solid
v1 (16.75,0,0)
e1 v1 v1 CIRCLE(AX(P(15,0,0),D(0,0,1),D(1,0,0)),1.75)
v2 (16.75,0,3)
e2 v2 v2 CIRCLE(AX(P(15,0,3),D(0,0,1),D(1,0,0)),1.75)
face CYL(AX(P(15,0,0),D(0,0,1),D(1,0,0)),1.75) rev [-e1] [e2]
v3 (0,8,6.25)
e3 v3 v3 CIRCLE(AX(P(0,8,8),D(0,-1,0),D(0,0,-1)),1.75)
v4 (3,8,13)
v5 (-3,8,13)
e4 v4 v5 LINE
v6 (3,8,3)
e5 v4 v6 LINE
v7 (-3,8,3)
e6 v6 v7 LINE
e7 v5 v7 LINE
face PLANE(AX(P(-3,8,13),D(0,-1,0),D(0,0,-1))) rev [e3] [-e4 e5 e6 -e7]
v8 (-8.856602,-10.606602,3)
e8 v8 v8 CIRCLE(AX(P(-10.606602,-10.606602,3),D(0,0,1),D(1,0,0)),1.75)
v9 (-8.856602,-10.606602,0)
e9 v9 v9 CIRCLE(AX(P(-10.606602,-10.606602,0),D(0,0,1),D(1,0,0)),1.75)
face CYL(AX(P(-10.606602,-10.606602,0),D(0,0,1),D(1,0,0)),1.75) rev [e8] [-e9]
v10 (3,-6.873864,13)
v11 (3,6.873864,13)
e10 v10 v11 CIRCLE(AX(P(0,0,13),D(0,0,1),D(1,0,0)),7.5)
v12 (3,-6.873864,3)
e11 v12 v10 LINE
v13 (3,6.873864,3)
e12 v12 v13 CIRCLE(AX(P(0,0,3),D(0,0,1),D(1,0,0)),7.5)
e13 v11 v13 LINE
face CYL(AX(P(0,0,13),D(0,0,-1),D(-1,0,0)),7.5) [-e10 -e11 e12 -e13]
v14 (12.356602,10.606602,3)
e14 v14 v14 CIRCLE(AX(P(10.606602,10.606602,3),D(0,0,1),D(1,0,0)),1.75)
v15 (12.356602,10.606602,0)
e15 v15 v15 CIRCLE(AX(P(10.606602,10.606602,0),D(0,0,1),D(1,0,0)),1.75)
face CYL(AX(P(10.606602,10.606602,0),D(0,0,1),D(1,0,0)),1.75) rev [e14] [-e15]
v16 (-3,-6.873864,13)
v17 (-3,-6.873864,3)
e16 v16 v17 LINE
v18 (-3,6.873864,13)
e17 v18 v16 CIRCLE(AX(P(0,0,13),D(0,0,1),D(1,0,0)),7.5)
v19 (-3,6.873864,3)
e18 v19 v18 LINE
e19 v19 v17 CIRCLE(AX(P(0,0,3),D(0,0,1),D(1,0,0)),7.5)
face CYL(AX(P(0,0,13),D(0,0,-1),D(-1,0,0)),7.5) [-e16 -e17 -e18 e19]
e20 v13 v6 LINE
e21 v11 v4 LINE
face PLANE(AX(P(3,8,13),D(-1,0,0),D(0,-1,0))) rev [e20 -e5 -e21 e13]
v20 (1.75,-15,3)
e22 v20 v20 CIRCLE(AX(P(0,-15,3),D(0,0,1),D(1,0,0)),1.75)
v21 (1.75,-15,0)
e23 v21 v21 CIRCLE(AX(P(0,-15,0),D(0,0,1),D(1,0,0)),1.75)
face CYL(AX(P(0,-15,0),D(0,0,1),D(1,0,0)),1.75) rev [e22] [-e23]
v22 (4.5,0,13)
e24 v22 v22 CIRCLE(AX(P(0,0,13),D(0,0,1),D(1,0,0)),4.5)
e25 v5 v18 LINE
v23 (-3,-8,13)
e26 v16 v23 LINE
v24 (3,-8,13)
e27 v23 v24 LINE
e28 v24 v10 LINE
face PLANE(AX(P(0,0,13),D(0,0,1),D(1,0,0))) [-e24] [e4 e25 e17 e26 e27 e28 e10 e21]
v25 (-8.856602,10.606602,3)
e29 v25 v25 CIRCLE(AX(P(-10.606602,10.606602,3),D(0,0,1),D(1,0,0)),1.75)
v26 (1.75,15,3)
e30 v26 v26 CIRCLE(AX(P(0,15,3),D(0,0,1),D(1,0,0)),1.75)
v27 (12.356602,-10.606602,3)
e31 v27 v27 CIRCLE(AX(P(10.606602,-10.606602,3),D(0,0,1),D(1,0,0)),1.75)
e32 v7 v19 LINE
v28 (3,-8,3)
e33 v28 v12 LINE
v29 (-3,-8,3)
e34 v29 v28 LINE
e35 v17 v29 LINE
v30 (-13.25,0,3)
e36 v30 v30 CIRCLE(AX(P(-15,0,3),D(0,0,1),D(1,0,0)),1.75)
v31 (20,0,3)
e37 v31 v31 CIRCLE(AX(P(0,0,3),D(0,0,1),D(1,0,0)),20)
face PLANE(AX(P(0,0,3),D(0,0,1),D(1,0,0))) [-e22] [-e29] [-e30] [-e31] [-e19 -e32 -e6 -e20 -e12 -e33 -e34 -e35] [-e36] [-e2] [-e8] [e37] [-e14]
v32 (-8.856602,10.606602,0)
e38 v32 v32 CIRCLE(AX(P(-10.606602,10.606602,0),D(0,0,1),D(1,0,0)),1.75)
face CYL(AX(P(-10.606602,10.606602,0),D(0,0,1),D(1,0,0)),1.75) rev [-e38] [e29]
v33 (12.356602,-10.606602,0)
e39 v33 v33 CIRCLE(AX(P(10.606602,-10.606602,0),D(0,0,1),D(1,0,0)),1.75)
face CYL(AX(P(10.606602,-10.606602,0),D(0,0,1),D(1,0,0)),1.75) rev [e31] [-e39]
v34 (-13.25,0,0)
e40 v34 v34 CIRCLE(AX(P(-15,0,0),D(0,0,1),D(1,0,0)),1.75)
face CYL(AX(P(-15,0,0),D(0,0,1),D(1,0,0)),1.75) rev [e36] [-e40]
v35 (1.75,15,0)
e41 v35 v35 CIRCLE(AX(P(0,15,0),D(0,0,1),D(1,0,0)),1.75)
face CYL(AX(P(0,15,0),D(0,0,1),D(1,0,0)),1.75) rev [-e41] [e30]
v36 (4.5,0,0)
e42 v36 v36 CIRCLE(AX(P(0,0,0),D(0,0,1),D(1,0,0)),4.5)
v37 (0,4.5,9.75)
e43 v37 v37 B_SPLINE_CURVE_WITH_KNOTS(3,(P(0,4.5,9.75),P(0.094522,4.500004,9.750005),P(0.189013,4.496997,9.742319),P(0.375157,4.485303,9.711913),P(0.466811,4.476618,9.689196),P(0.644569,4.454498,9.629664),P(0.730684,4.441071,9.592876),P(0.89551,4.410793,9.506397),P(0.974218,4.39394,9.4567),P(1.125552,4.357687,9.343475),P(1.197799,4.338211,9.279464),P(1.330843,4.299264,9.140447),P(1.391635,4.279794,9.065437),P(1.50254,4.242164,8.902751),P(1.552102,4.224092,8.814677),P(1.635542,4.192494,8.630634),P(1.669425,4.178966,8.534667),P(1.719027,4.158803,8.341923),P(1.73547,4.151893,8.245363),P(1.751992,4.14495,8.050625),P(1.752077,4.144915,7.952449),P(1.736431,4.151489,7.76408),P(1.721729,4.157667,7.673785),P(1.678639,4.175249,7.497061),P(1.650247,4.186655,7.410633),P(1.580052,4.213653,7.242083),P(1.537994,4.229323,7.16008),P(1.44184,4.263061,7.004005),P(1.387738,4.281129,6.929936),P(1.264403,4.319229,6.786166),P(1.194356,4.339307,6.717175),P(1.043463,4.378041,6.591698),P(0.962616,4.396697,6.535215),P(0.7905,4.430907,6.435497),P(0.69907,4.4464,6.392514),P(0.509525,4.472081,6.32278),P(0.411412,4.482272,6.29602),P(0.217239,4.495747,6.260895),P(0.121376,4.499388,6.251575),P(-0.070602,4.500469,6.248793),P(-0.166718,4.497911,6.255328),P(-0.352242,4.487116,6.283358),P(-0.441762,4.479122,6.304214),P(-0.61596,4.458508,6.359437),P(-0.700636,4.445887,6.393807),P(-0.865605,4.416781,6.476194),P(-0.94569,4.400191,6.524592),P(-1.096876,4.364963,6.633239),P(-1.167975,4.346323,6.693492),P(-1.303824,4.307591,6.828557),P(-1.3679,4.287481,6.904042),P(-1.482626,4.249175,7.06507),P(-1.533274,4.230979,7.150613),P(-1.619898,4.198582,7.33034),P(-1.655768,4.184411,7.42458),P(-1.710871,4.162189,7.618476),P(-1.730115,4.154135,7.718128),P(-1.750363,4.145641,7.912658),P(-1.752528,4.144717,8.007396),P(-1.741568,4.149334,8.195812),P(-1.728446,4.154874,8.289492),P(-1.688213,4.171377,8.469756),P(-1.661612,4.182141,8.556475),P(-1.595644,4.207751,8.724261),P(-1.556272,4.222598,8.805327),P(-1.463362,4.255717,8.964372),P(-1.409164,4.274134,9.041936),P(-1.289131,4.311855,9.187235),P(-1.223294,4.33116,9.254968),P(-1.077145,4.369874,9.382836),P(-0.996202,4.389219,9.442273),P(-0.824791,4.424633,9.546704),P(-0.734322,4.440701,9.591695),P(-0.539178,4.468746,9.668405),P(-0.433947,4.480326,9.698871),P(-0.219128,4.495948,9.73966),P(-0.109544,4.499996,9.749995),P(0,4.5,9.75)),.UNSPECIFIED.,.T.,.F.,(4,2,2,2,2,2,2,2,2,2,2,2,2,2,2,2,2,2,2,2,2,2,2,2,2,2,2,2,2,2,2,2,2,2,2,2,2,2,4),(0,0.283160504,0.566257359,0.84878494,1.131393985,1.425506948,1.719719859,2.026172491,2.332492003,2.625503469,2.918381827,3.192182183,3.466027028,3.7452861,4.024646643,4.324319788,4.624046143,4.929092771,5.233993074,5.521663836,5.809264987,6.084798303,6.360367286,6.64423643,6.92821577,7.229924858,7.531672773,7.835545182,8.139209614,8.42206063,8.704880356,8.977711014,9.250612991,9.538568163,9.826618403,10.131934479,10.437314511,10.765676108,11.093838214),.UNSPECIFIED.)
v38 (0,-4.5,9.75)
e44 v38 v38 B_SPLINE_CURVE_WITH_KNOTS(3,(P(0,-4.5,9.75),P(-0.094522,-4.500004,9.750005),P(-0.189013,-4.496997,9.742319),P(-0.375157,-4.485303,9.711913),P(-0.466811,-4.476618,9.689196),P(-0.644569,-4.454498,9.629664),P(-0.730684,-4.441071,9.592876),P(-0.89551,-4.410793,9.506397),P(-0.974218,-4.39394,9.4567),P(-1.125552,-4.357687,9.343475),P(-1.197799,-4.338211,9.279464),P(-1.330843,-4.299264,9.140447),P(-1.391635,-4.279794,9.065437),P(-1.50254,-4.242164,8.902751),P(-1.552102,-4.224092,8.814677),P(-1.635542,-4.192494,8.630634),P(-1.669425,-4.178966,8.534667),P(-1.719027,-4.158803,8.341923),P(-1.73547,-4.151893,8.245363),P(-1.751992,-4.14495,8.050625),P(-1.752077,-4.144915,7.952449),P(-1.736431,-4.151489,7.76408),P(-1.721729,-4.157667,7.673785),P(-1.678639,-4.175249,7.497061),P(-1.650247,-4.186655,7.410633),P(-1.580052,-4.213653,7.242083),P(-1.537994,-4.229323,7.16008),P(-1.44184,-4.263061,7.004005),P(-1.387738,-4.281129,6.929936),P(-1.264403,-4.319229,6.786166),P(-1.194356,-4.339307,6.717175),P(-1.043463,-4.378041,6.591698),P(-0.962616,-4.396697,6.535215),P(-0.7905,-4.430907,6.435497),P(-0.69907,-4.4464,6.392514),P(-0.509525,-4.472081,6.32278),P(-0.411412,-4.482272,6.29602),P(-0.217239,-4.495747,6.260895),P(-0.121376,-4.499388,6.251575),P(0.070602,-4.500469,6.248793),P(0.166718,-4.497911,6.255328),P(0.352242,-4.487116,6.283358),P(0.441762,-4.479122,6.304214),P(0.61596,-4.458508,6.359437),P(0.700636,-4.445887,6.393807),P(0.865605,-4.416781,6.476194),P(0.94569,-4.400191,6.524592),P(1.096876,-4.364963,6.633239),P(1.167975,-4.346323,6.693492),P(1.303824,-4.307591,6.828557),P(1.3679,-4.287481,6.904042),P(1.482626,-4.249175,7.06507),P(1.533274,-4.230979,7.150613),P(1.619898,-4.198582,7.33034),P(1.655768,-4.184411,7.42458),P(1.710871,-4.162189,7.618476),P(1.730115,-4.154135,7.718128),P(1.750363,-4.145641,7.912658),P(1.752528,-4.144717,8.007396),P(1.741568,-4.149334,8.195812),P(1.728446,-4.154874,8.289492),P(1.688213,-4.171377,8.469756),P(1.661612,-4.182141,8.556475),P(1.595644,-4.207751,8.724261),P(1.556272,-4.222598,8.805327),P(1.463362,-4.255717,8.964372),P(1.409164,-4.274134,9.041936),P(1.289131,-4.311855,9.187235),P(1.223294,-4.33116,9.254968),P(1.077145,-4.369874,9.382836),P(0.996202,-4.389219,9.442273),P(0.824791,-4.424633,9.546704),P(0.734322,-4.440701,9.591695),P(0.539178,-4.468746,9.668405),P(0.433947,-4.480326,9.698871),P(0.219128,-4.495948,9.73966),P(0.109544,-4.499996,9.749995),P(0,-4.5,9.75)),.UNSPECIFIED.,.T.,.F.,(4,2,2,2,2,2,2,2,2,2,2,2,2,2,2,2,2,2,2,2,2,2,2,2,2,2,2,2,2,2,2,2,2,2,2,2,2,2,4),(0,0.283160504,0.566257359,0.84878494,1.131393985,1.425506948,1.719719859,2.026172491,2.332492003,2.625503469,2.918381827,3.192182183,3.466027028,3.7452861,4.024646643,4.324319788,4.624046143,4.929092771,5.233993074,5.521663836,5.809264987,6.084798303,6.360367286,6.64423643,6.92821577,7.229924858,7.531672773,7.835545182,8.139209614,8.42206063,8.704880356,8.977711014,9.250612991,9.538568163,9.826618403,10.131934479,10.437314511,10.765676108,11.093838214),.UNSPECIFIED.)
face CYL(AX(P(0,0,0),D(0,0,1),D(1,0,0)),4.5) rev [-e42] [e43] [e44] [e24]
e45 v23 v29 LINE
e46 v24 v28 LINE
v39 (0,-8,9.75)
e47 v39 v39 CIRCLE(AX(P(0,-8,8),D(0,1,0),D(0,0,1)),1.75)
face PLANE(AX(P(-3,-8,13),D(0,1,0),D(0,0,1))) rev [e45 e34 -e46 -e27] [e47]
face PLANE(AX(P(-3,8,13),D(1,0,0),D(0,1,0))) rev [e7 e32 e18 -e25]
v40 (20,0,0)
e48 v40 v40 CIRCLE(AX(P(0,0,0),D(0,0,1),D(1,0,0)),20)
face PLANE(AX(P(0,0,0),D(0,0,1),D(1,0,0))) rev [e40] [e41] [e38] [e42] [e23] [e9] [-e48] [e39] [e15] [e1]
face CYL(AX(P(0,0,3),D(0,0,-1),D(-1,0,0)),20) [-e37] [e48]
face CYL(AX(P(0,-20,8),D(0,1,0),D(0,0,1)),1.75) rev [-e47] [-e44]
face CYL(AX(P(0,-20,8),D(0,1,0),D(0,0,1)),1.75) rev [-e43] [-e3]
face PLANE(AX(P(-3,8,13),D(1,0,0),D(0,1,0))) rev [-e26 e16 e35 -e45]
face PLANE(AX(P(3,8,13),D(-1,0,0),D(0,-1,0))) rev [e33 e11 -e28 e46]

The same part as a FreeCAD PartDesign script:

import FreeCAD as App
import Part
import Sketcher
Q = App.Units.Quantity


def add_polygon(sketch, points):
    """Adds a closed chain of lines whose ends are joined by coincident constraints."""
    first, n = sketch.GeometryCount, len(points)
    for a, b in zip(points, points[1:] + points[:1]):
        sketch.addGeometry(Part.LineSegment(App.Vector(*a, 0), App.Vector(*b, 0)), False)
    for i in range(n):
        sketch.addConstraint(Sketcher.Constraint("Coincident", first + i, 2, first + (i + 1) % n, 1))

doc = App.newDocument("Part")
params = doc.addObject("Spreadsheet::Sheet", "Params")
for row, (alias, value) in enumerate([
    ("sketch1_diameter", "40 mm"),
    ("pad1_length", "3 mm"),
    ("sketch2_diameter", "15 mm"),
    ("pad2_length", "10 mm"),
    ("sketch3_width", "6 mm"),
    ("sketch3_height", "16 mm"),
    ("pad3_length", "10 mm"),
    ("sketch4_diameter", "9 mm"),
    ("sketch5_diameter", "3.5 mm"),
    ("sketch6_diameter", "3.5 mm"),
], start=1):
    params.set(f"A{row}", alias)
    params.set(f"B{row}", "=" + value)
    params.setAlias(f"B{row}", alias)

body = doc.addObject("PartDesign::Body", "Body")

# Sketch on XY plane
sketch1 = doc.addObject("Sketcher::SketchObject", "Sketch")
body.addObject(sketch1)
sketch1.AttachmentSupport = (doc.XY_Plane, [""])
sketch1.MapMode = "FlatFace"
sketch1.addGeometry(Part.Circle(App.Vector(0, 0, 0), App.Vector(0, 0, 1), 20), False)
sketch1.addConstraint([
    Sketcher.Constraint("Coincident", 0, 3, -1, 1),
    Sketcher.Constraint("Diameter", 0, Q("40 mm")),
])
sketch1.setExpression("Constraints[1]", "Params.sketch1_diameter")
pad1 = doc.addObject("PartDesign::Pad", "Pad")
body.addObject(pad1)
pad1.Profile = sketch1
pad1.setExpression("Length", "Params.pad1_length")

# Sketch on XY plane
sketch2 = doc.addObject("Sketcher::SketchObject", "Sketch001")
body.addObject(sketch2)
sketch2.AttachmentSupport = (doc.XY_Plane, [""])
sketch2.MapMode = "FlatFace"
sketch2.AttachmentOffset = App.Placement(App.Vector(0, 0, 3), App.Rotation())
sketch2.addGeometry(Part.Circle(App.Vector(0, 0, 0), App.Vector(0, 0, 1), 8), False)
sketch2.addConstraint([
    Sketcher.Constraint("Coincident", 0, 3, -1, 1),
    Sketcher.Constraint("Diameter", 0, Q("15 mm")),
])
sketch2.setExpression("Constraints[1]", "Params.sketch2_diameter")
pad2 = doc.addObject("PartDesign::Pad", "Pad001")
body.addObject(pad2)
pad2.Profile = sketch2
pad2.setExpression("Length", "Params.pad2_length")

# Sketch on XY plane
sketch3 = doc.addObject("Sketcher::SketchObject", "Sketch002")
body.addObject(sketch3)
sketch3.AttachmentSupport = (doc.XY_Plane, [""])
sketch3.MapMode = "FlatFace"
sketch3.AttachmentOffset = App.Placement(App.Vector(0, 0, 3), App.Rotation())
add_polygon(sketch3, [(-3, 8), (-3, -8), (3, -8), (3, 8)])  # lines 0-3
sketch3.addConstraint([
    Sketcher.Constraint("Vertical", 0),
    Sketcher.Constraint("Horizontal", 1),
    Sketcher.Constraint("Vertical", 2),
    Sketcher.Constraint("Horizontal", 3),
    Sketcher.Constraint("Symmetric", 0, 2, 2, 2, -1, 1),
    Sketcher.Constraint("DistanceX", 1, 1, 1, 2, Q("6 mm")),
    Sketcher.Constraint("DistanceY", 0, 2, 0, 1, Q("16 mm")),
])
sketch3.setExpression("Constraints[9]", "Params.sketch3_width")
sketch3.setExpression("Constraints[10]", "Params.sketch3_height")
pad3 = doc.addObject("PartDesign::Pad", "Pad002")
body.addObject(pad3)
pad3.Profile = sketch3
pad3.setExpression("Length", "Params.pad3_length")

# Sketch on XY plane
sketch4 = doc.addObject("Sketcher::SketchObject", "Sketch003")
body.addObject(sketch4)
sketch4.AttachmentSupport = (doc.XY_Plane, [""])
sketch4.MapMode = "FlatFace"
sketch4.AttachmentOffset = App.Placement(App.Vector(0, 0, 13), App.Rotation())
sketch4.addGeometry(Part.Circle(App.Vector(0, 0, 0), App.Vector(0, 0, 1), 4.5), False)
sketch4.addConstraint([
    Sketcher.Constraint("Coincident", 0, 3, -1, 1),
    Sketcher.Constraint("Diameter", 0, Q("9 mm")),
])
sketch4.setExpression("Constraints[1]", "Params.sketch4_diameter")
pocket1 = doc.addObject("PartDesign::Pocket", "Pocket")
body.addObject(pocket1)
pocket1.Profile = sketch4
pocket1.Type = "ThroughAll"

# Sketch on XY plane
sketch5 = doc.addObject("Sketcher::SketchObject", "Sketch004")
body.addObject(sketch5)
sketch5.AttachmentSupport = (doc.XY_Plane, [""])
sketch5.MapMode = "FlatFace"
sketch5.AttachmentOffset = App.Placement(App.Vector(0, 0, 3), App.Rotation())
sketch5.addGeometry([
    Part.Circle(App.Vector(0, 15, 0), App.Vector(0, 0, 1), 1.8),  # 0
    Part.Circle(App.Vector(10.6, 10.6, 0), App.Vector(0, 0, 1), 1.8),  # 1
    Part.Circle(App.Vector(15, 0, 0), App.Vector(0, 0, 1), 1.8),  # 2
    Part.Circle(App.Vector(10.6, -10.6, 0), App.Vector(0, 0, 1), 1.8),  # 3
    Part.Circle(App.Vector(0, -15, 0), App.Vector(0, 0, 1), 1.8),  # 4
    Part.Circle(App.Vector(-10.6, -10.6, 0), App.Vector(0, 0, 1), 1.8),  # 5
    Part.Circle(App.Vector(-15, 0, 0), App.Vector(0, 0, 1), 1.8),  # 6
    Part.Circle(App.Vector(-10.6, 10.6, 0), App.Vector(0, 0, 1), 1.8),  # 7
], False)
sketch5.addConstraint([
    Sketcher.Constraint("Equal", 0, 1),
    Sketcher.Constraint("Equal", 1, 2),
    Sketcher.Constraint("Equal", 2, 3),
    Sketcher.Constraint("Equal", 3, 4),
    Sketcher.Constraint("Equal", 4, 5),
    Sketcher.Constraint("Equal", 5, 6),
    Sketcher.Constraint("Equal", 6, 7),
    Sketcher.Constraint("Symmetric", 0, 3, 4, 3, -1, 1),
    Sketcher.Constraint("Symmetric", 1, 3, 5, 3, -1, 1),
    Sketcher.Constraint("Symmetric", 2, 3, 6, 3, -1, 1),
    Sketcher.Constraint("Symmetric", 3, 3, 7, 3, -1, 1),
    Sketcher.Constraint("Symmetric", 3, 3, 5, 3, -2),
    Sketcher.Constraint("PointOnObject", 0, 3, -2),
    Sketcher.Constraint("PointOnObject", 2, 3, -1),
    Sketcher.Constraint("Diameter", 0, Q("3.5 mm")),
    Sketcher.Constraint("DistanceY", -1, 1, 0, 3, Q("15 mm")),
    Sketcher.Constraint("DistanceX", -1, 1, 2, 3, Q("15 mm")),
    Sketcher.Constraint("DistanceX", -1, 1, 1, 3, Q("10.606602 mm")),
    Sketcher.Constraint("DistanceY", -1, 1, 1, 3, Q("10.606602 mm")),
])
sketch5.setExpression("Constraints[14]", "Params.sketch5_diameter")
pocket2 = doc.addObject("PartDesign::Pocket", "Pocket001")
body.addObject(pocket2)
pocket2.Profile = sketch5
pocket2.Type = "ThroughAll"

# Sketch on XZ plane
sketch6 = doc.addObject("Sketcher::SketchObject", "Sketch005")
body.addObject(sketch6)
sketch6.AttachmentSupport = (doc.XZ_Plane, [""])
sketch6.MapMode = "FlatFace"
sketch6.addGeometry(Part.Circle(App.Vector(0, 8, 0), App.Vector(0, 0, 1), 1.8), False)
sketch6.addConstraint([
    Sketcher.Constraint("PointOnObject", 0, 3, -2),
    Sketcher.Constraint("Diameter", 0, Q("3.5 mm")),
    Sketcher.Constraint("DistanceY", -1, 1, 0, 3, Q("8 mm")),
])
sketch6.setExpression("Constraints[1]", "Params.sketch6_diameter")
pocket3 = doc.addObject("PartDesign::Pocket", "Pocket002")
body.addObject(pocket3)
pocket3.Profile = sketch6
pocket3.Type = "ThroughAll"
pocket3.Midplane = True

doc.recompute()
